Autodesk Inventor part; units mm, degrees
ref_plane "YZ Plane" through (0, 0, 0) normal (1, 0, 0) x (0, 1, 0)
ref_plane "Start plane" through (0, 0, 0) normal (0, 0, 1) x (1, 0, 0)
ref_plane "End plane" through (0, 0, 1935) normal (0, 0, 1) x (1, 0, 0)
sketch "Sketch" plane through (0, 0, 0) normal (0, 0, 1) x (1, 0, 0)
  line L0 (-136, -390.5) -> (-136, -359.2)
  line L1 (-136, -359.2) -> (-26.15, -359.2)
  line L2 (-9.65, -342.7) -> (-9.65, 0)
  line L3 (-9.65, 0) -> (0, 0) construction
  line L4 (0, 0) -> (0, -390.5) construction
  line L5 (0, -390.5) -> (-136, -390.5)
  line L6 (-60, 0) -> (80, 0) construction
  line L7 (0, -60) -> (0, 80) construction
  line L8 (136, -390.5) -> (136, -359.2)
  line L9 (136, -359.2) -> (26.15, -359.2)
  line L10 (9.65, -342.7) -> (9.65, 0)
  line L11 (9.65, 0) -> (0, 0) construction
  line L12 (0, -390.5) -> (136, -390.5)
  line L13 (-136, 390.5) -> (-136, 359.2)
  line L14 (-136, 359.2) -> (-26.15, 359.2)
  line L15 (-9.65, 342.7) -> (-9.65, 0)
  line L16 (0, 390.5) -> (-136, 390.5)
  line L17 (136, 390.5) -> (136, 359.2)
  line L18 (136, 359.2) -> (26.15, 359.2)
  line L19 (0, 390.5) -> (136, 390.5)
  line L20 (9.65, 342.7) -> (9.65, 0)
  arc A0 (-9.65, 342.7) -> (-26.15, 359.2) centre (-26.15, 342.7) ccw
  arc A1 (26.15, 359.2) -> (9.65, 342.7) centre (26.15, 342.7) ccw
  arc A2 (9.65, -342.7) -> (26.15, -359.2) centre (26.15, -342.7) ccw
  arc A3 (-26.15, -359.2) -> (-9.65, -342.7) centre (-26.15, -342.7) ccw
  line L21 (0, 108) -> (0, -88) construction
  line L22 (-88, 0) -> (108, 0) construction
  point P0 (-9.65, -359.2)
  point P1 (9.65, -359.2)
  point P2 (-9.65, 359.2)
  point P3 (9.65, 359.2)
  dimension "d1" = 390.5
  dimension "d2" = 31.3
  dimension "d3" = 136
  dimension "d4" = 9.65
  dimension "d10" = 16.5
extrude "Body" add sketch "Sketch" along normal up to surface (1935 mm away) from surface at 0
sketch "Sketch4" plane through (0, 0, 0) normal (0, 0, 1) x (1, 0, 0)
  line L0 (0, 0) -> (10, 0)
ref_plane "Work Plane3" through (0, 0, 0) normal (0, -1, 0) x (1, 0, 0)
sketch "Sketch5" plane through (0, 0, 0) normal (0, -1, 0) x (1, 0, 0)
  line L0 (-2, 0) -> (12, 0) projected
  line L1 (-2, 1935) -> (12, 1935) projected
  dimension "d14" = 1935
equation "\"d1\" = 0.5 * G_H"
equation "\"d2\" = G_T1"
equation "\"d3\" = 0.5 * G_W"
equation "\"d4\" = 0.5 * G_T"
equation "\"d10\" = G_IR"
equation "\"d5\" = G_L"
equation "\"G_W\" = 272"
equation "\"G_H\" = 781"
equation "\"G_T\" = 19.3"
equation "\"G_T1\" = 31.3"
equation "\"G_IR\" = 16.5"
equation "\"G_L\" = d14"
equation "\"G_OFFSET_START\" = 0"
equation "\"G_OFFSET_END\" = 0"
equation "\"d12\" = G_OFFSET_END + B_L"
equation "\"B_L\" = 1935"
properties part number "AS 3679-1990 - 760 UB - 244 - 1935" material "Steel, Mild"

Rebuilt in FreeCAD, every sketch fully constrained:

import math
import FreeCAD as App
import Part
import Sketcher

V = App.Vector
Q = App.Units.Quantity

doc = App.newDocument("Part")
body = doc.addObject("PartDesign::Body", "Body")

sketch1 = body.newObject("Sketcher::SketchObject", "Sketch")
sketch1.AttachmentSupport = (doc.getObject("XY_Plane"), [""])
sketch1.MapMode = "FlatFace"
sketch1.addGeometry(Part.LineSegment(V(-136, -359.2, 0), V(-136, -390.5, 0)), False)
sketch1.addGeometry(Part.LineSegment(V(-136, -390.5, 0), V(136, -390.5, 0)), False)
sketch1.addGeometry(Part.LineSegment(V(136, -390.5, 0), V(136, -359.2, 0)), False)
sketch1.addGeometry(Part.LineSegment(V(136, -359.2, 0), V(26.15, -359.2, 0)), False)
sketch1.addGeometry(Part.ArcOfCircle(Part.Circle(V(26.15, -342.7, 0), V(0, 0, 1), 16.5), math.radians(180), math.radians(270)), False)
sketch1.addGeometry(Part.LineSegment(V(9.65, -342.7, 0), V(9.65, 342.7, 0)), False)
sketch1.addGeometry(Part.ArcOfCircle(Part.Circle(V(26.15, 342.7, 0), V(0, 0, 1), 16.5), math.radians(90), math.radians(180)), False)
sketch1.addGeometry(Part.LineSegment(V(26.15, 359.2, 0), V(136, 359.2, 0)), False)
sketch1.addGeometry(Part.LineSegment(V(136, 359.2, 0), V(136, 390.5, 0)), False)
sketch1.addGeometry(Part.LineSegment(V(136, 390.5, 0), V(-136, 390.5, 0)), False)
sketch1.addGeometry(Part.LineSegment(V(-136, 390.5, 0), V(-136, 359.2, 0)), False)
sketch1.addGeometry(Part.LineSegment(V(-136, 359.2, 0), V(-26.15, 359.2, 0)), False)
sketch1.addGeometry(Part.ArcOfCircle(Part.Circle(V(-26.15, 342.7, 0), V(0, 0, 1), 16.5), math.radians(0), math.radians(90)), False)
sketch1.addGeometry(Part.LineSegment(V(-9.65, 342.7, 0), V(-9.65, -342.7, 0)), False)
sketch1.addGeometry(Part.ArcOfCircle(Part.Circle(V(-26.15, -342.7, 0), V(0, 0, 1), 16.5), math.radians(-90), math.radians(0)), False)
sketch1.addGeometry(Part.LineSegment(V(-26.15, -359.2, 0), V(-136, -359.2, 0)), False)
sketch1.addConstraint(Sketcher.Constraint("Coincident", 0, 2, 1, 1))
sketch1.addConstraint(Sketcher.Constraint("Coincident", 1, 2, 2, 1))
sketch1.addConstraint(Sketcher.Constraint("Coincident", 2, 2, 3, 1))
sketch1.addConstraint(Sketcher.Constraint("Tangent", 3, 2, 4, 2))
sketch1.addConstraint(Sketcher.Constraint("Tangent", 4, 1, 5, 1))
sketch1.addConstraint(Sketcher.Constraint("Tangent", 5, 2, 6, 2))
sketch1.addConstraint(Sketcher.Constraint("Tangent", 6, 1, 7, 1))
sketch1.addConstraint(Sketcher.Constraint("Coincident", 7, 2, 8, 1))
sketch1.addConstraint(Sketcher.Constraint("Coincident", 8, 2, 9, 1))
sketch1.addConstraint(Sketcher.Constraint("Coincident", 9, 2, 10, 1))
sketch1.addConstraint(Sketcher.Constraint("Coincident", 10, 2, 11, 1))
sketch1.addConstraint(Sketcher.Constraint("Tangent", 11, 2, 12, 2))
sketch1.addConstraint(Sketcher.Constraint("Tangent", 12, 1, 13, 1))
sketch1.addConstraint(Sketcher.Constraint("Tangent", 13, 2, 14, 2))
sketch1.addConstraint(Sketcher.Constraint("Tangent", 14, 1, 15, 1))
sketch1.addConstraint(Sketcher.Constraint("Coincident", 15, 2, 0, 1))
sketch1.addConstraint(Sketcher.Constraint("Vertical", 0))
sketch1.addConstraint(Sketcher.Constraint("Horizontal", 1))
sketch1.addConstraint(Sketcher.Constraint("Vertical", 2))
sketch1.addConstraint(Sketcher.Constraint("Horizontal", 3))
sketch1.addConstraint(Sketcher.Constraint("Vertical", 5))
sketch1.addConstraint(Sketcher.Constraint("Horizontal", 7))
sketch1.addConstraint(Sketcher.Constraint("Vertical", 8))
sketch1.addConstraint(Sketcher.Constraint("Horizontal", 9))
sketch1.addConstraint(Sketcher.Constraint("Vertical", 10))
sketch1.addConstraint(Sketcher.Constraint("Horizontal", 11))
sketch1.addConstraint(Sketcher.Constraint("Vertical", 13))
sketch1.addConstraint(Sketcher.Constraint("Horizontal", 15))
sketch1.addConstraint(Sketcher.Constraint("Equal", 4, 6))
sketch1.addConstraint(Sketcher.Constraint("Equal", 6, 12))
sketch1.addConstraint(Sketcher.Constraint("Equal", 12, 14))
sketch1.addConstraint(Sketcher.Constraint("Symmetric", 4, 3, 12, 3, -1, 1))
sketch1.addConstraint(Sketcher.Constraint("Symmetric", 0, 2, 8, 2, -1, 1))
sketch1.addConstraint(Sketcher.Constraint("Symmetric", 7, 2, 10, 2, -2))
sketch1.addConstraint(Sketcher.Constraint("Symmetric", 2, 2, 15, 2, -2))
sketch1.addConstraint(Sketcher.Constraint("Radius", 4, Q("16.5 mm")))
sketch1.addConstraint(Sketcher.Constraint("DistanceY", 0, 2, 0, 1, Q("31.3 mm")))
sketch1.addConstraint(Sketcher.Constraint("DistanceX", 0, 2, -1, 1, Q("136 mm")))
sketch1.addConstraint(Sketcher.Constraint("DistanceY", 0, 2, -1, 1, Q("390.5 mm")))
sketch1.addConstraint(Sketcher.Constraint("DistanceX", -1, 1, 4, 1, Q("9.65 mm")))
pad1 = body.newObject("PartDesign::Pad", "Pad")
pad1.Profile = sketch1
pad1.Length = 1935

doc.recompute()
